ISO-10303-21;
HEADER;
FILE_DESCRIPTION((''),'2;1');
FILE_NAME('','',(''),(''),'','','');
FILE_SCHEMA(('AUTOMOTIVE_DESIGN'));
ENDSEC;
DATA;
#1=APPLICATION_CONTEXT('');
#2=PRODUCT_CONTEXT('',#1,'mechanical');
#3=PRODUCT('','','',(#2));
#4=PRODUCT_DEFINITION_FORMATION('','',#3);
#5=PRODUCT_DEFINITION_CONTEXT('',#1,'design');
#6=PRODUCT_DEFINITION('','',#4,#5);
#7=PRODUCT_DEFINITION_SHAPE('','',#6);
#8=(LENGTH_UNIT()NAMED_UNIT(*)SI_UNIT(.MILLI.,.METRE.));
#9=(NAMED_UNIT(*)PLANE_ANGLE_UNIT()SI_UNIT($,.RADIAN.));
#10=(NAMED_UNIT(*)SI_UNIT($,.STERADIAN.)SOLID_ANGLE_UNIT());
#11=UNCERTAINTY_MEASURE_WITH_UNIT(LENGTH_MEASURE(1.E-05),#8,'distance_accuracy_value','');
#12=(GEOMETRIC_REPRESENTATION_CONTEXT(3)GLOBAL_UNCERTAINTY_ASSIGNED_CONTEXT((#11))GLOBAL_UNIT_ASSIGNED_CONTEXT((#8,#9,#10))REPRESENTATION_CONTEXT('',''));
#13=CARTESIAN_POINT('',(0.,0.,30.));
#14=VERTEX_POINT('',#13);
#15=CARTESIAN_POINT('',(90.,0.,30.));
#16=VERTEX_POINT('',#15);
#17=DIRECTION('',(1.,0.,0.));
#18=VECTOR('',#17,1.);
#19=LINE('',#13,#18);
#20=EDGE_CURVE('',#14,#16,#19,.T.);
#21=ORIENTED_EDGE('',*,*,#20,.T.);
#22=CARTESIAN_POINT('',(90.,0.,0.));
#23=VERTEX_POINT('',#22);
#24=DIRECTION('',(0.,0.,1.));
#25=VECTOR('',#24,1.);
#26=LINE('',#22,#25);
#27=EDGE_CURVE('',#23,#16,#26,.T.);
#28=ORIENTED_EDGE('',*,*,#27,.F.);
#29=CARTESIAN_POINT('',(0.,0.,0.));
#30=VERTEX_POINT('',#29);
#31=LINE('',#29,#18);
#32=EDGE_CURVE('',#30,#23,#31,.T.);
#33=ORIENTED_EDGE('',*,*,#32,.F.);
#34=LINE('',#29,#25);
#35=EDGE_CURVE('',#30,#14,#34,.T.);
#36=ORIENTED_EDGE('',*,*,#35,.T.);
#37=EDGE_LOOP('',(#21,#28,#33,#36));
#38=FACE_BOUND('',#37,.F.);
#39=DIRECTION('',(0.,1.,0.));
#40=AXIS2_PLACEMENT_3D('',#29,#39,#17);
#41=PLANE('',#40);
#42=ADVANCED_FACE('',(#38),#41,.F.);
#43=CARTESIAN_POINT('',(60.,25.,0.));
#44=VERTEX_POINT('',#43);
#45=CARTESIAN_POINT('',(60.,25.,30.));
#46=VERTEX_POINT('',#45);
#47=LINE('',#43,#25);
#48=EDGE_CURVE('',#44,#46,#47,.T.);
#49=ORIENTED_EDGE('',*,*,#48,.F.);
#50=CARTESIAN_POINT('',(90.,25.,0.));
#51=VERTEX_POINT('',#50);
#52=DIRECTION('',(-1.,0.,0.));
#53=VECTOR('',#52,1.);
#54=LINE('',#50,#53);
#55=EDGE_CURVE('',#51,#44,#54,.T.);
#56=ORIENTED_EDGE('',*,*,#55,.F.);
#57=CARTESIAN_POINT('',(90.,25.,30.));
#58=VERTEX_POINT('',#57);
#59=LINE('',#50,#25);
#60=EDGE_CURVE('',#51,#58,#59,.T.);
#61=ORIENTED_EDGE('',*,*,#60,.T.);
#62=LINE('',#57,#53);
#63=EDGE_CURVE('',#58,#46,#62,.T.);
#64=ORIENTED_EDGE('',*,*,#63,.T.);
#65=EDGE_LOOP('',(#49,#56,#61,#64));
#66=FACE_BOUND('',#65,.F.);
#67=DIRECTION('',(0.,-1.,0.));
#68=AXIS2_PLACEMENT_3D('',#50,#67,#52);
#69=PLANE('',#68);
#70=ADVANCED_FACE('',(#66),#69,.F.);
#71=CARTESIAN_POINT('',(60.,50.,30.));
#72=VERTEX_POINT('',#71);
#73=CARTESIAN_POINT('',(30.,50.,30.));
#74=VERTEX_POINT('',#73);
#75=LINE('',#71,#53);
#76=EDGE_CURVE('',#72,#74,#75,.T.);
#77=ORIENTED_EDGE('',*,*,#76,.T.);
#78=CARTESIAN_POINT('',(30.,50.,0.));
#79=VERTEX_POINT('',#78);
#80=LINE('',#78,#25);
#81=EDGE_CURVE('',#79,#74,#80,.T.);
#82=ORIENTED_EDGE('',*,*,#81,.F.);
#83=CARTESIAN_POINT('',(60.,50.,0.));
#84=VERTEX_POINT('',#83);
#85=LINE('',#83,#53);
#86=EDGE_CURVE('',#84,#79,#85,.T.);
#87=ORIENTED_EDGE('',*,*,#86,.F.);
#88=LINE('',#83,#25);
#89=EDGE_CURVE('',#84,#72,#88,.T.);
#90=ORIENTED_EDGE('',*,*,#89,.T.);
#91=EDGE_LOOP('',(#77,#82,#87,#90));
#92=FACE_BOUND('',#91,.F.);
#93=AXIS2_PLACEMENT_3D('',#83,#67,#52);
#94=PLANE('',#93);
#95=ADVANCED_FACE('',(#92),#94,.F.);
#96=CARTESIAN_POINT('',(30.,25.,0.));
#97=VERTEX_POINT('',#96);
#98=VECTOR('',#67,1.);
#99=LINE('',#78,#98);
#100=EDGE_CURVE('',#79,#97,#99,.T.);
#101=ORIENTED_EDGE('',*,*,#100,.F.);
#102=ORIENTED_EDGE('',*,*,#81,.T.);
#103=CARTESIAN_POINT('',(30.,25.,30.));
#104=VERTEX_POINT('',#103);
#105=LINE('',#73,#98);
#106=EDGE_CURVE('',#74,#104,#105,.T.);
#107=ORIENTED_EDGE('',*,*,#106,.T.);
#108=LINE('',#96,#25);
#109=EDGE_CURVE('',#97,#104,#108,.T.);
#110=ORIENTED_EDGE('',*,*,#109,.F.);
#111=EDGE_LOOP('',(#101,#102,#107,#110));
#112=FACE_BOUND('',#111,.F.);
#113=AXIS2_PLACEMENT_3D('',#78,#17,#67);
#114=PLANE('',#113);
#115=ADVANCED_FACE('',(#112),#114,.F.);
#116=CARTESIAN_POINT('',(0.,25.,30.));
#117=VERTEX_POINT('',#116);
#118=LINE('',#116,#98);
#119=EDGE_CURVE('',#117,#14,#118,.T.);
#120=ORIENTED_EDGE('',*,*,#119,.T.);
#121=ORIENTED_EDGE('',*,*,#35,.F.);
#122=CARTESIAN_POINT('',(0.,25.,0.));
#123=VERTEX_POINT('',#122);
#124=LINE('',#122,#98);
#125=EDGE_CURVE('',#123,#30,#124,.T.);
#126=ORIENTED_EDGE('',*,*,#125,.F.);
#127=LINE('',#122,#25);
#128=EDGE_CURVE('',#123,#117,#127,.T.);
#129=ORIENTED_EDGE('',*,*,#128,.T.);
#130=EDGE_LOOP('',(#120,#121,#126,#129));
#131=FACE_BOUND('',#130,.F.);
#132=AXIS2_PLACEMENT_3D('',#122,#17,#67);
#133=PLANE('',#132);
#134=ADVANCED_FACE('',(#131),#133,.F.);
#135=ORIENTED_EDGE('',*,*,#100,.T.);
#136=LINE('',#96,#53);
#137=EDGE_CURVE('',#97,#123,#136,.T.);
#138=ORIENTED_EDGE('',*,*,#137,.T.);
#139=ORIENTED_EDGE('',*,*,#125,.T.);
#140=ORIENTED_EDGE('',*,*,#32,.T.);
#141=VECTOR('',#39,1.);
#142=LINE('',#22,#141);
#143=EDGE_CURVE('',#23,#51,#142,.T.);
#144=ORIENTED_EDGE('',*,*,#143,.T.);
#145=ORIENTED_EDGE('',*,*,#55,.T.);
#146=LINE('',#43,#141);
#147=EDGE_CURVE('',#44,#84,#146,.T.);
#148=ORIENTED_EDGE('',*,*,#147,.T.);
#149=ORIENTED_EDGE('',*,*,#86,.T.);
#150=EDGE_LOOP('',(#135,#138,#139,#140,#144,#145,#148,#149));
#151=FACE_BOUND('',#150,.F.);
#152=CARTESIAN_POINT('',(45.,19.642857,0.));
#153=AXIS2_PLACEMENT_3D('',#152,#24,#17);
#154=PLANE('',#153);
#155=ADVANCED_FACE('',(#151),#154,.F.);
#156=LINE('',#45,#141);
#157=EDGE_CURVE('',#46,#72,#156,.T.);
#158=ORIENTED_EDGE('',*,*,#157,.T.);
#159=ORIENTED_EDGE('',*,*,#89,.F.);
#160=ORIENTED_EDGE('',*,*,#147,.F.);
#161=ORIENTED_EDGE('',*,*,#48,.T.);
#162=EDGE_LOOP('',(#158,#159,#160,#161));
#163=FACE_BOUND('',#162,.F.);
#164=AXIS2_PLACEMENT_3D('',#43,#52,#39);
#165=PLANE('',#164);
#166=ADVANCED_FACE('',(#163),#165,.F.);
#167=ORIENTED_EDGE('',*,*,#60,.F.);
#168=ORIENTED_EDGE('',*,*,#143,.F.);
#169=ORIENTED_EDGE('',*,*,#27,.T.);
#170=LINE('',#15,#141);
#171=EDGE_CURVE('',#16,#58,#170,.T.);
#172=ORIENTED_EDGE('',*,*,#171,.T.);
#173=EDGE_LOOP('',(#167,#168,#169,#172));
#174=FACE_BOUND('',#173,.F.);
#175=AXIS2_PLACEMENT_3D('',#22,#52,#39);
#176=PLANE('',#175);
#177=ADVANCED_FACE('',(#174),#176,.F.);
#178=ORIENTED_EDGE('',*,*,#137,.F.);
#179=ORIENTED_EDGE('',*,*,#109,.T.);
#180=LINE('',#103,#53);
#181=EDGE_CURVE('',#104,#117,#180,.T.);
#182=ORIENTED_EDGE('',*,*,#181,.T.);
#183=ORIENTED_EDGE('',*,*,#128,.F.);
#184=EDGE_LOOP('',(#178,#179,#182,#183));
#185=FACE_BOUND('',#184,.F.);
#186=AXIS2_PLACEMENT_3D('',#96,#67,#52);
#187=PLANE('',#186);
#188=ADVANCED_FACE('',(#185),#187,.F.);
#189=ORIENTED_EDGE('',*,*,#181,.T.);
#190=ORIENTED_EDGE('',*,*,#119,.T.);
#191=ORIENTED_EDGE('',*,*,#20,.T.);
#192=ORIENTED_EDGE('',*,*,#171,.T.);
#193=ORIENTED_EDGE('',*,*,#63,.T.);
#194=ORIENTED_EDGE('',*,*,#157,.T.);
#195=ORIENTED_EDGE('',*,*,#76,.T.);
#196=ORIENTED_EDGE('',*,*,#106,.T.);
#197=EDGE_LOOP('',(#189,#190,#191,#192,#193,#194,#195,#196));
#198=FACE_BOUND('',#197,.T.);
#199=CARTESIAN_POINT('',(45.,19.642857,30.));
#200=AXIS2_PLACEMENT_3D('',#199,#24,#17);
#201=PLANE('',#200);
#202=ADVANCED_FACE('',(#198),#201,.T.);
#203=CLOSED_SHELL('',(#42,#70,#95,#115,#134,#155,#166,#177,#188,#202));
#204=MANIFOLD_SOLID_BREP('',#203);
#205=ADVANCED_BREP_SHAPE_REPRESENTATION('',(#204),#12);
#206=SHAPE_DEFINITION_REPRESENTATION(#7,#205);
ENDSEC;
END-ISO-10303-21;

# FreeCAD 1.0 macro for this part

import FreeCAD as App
import Part
import Sketcher
Q = App.Units.Quantity

doc = App.newDocument("Part")
body = doc.addObject("PartDesign::Body", "Body")

sketch1 = body.newObject("Sketcher::SketchObject", "Sketch")
sketch1.AttachmentSupport = (doc.getObject("XY_Plane"), [""])
sketch1.MapMode = "FlatFace"
sketch1.addGeometry(Part.LineSegment(App.Vector(0, 0, 0), App.Vector(90, 0, 0)), False)
sketch1.addGeometry(Part.LineSegment(App.Vector(90, 0, 0), App.Vector(90, 25, 0)), False)
sketch1.addGeometry(Part.LineSegment(App.Vector(90, 25, 0), App.Vector(60, 25, 0)), False)
sketch1.addGeometry(Part.LineSegment(App.Vector(60, 25, 0), App.Vector(60, 50, 0)), False)
sketch1.addGeometry(Part.LineSegment(App.Vector(60, 50, 0), App.Vector(30, 50, 0)), False)
sketch1.addGeometry(Part.LineSegment(App.Vector(30, 50, 0), App.Vector(30, 25, 0)), False)
sketch1.addGeometry(Part.LineSegment(App.Vector(30, 25, 0), App.Vector(0, 25, 0)), False)
sketch1.addGeometry(Part.LineSegment(App.Vector(0, 25, 0), App.Vector(0, 0, 0)), False)
sketch1.addConstraint(Sketcher.Constraint("Coincident", 0, 2, 1, 1))
sketch1.addConstraint(Sketcher.Constraint("Coincident", 1, 2, 2, 1))
sketch1.addConstraint(Sketcher.Constraint("Coincident", 2, 2, 3, 1))
sketch1.addConstraint(Sketcher.Constraint("Coincident", 3, 2, 4, 1))
sketch1.addConstraint(Sketcher.Constraint("Coincident", 4, 2, 5, 1))
sketch1.addConstraint(Sketcher.Constraint("Coincident", 5, 2, 6, 1))
sketch1.addConstraint(Sketcher.Constraint("Coincident", 6, 2, 7, 1))
sketch1.addConstraint(Sketcher.Constraint("Coincident", 7, 2, 0, 1))
sketch1.addConstraint(Sketcher.Constraint("Horizontal", 0))
sketch1.addConstraint(Sketcher.Constraint("Vertical", 1))
sketch1.addConstraint(Sketcher.Constraint("Horizontal", 2))
sketch1.addConstraint(Sketcher.Constraint("Vertical", 3))
sketch1.addConstraint(Sketcher.Constraint("Horizontal", 4))
sketch1.addConstraint(Sketcher.Constraint("Vertical", 5))
sketch1.addConstraint(Sketcher.Constraint("Horizontal", 6))
sketch1.addConstraint(Sketcher.Constraint("Vertical", 7))
sketch1.addConstraint(Sketcher.Constraint("Coincident", 7, 2, -1, 1))
sketch1.addConstraint(Sketcher.Constraint("Horizontal", 2, 2, 5, 2))
sketch1.addConstraint(Sketcher.Constraint("Equal", 2, 4))
sketch1.addConstraint(Sketcher.Constraint("Equal", 4, 6))
sketch1.addConstraint(Sketcher.Constraint("Equal", 1, 3))
sketch1.addConstraint(Sketcher.Constraint("DistanceX", 0, 1, 0, 2, Q("90 mm")))
sketch1.addConstraint(Sketcher.Constraint("DistanceY", 1, 1, 1, 2, Q("25 mm")))
pad1 = body.newObject("PartDesign::Pad", "Pad")
pad1.Profile = sketch1
pad1.Length = 30

doc.recompute()
